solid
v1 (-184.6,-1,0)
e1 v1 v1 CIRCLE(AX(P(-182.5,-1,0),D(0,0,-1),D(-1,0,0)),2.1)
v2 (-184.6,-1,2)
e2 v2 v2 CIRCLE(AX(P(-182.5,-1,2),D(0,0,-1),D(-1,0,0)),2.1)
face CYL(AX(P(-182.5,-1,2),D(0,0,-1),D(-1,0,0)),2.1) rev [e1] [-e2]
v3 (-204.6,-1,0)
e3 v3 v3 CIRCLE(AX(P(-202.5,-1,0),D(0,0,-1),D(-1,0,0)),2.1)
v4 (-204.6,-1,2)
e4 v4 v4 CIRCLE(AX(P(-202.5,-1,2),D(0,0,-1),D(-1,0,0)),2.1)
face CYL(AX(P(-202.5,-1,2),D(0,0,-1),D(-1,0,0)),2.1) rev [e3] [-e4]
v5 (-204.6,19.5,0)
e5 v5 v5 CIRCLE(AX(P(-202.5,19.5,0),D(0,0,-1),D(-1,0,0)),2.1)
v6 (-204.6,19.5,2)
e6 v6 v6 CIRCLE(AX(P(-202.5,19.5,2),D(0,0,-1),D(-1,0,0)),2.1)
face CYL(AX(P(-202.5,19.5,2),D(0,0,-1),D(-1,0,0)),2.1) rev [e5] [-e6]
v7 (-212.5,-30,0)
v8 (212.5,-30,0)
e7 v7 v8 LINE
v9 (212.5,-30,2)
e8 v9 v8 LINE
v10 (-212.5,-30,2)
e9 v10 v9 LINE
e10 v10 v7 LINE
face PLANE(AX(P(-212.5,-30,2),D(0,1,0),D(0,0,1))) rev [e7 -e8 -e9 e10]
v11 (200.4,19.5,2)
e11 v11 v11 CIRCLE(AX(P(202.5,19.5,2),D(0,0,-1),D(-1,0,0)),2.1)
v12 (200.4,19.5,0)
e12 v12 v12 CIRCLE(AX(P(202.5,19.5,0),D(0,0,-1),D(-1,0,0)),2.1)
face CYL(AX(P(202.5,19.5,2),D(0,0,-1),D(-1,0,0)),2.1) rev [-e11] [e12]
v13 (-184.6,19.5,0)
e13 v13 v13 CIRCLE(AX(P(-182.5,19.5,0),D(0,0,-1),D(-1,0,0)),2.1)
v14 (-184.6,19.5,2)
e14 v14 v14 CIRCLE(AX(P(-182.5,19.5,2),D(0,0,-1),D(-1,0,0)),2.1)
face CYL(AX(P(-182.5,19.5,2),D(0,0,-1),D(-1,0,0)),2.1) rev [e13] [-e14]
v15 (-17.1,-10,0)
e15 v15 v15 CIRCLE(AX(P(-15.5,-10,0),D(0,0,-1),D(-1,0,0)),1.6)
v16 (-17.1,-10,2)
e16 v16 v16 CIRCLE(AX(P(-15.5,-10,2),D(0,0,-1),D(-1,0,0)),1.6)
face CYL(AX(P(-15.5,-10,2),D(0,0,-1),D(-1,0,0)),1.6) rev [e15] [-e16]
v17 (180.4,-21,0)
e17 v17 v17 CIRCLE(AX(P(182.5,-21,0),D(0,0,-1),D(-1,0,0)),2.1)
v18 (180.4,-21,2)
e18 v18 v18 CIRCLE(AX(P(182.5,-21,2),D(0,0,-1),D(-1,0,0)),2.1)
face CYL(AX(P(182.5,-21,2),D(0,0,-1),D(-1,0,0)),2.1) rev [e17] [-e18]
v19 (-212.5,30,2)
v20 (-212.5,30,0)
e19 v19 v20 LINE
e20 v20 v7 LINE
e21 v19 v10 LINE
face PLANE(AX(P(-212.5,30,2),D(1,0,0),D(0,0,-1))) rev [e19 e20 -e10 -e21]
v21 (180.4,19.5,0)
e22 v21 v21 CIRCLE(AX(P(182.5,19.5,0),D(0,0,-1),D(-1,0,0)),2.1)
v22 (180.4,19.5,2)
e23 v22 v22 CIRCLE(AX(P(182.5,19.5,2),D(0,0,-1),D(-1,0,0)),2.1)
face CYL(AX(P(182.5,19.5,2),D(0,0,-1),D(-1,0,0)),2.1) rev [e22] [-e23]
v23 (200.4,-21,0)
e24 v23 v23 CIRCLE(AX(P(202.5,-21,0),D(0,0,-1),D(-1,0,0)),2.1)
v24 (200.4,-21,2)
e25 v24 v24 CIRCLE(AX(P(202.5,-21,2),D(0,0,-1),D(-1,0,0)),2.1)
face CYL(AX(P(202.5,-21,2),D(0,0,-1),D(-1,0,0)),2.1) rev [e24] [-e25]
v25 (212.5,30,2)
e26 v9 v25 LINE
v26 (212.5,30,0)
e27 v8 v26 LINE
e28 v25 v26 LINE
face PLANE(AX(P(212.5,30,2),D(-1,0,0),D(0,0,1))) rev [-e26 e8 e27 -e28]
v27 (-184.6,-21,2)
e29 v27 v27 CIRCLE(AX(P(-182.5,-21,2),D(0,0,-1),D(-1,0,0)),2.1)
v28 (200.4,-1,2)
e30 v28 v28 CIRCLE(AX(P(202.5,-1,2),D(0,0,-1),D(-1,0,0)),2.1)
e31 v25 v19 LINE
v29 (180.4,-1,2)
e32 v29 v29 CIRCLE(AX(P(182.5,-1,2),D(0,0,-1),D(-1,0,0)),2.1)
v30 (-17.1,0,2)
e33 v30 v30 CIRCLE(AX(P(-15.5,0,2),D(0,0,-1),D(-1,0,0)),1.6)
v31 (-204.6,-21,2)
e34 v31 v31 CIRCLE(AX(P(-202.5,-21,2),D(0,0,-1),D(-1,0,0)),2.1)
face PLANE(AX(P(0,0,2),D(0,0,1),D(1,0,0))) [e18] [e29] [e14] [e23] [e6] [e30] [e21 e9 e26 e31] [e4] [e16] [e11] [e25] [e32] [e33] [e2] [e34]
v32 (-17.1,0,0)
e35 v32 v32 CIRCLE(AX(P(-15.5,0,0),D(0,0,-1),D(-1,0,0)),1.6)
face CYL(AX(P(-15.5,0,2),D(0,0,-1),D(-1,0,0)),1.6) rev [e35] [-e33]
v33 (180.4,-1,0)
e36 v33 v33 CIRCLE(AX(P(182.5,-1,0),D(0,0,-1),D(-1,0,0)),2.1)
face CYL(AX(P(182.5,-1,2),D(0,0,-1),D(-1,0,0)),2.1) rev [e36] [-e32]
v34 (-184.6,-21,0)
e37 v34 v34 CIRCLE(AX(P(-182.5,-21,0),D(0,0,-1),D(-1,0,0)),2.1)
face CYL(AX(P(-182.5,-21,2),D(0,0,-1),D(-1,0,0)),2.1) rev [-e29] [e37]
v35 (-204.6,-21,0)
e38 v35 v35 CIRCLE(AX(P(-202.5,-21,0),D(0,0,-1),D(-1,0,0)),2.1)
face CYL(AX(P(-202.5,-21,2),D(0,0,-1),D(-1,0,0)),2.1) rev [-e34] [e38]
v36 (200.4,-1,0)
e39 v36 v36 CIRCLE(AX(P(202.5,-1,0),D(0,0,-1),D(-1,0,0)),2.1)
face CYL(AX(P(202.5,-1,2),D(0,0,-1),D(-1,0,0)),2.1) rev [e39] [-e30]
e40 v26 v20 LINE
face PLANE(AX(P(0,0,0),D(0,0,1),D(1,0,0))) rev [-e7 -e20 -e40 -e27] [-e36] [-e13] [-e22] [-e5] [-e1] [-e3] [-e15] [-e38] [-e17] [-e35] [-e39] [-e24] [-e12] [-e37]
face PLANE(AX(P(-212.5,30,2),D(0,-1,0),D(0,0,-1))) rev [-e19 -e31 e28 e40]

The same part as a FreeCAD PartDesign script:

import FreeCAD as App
import Part
import Sketcher
from FreeCAD import Vector


def add_polygon(sketch, points):
    """Adds a closed chain of lines whose ends are joined by coincident constraints."""
    first, n = sketch.GeometryCount, len(points)
    for a, b in zip(points, points[1:] + points[:1]):
        sketch.addGeometry(Part.LineSegment(App.Vector(*a, 0), App.Vector(*b, 0)), False)
    for i in range(n):
        sketch.addConstraint(Sketcher.Constraint("Coincident", first + i, 2, first + (i + 1) % n, 1))

doc = App.newDocument("Part")
body = doc.addObject("PartDesign::Body", "Body")

# Sketch on XY plane
sketch1 = body.newObject("Sketcher::SketchObject", "Sketch")
sketch1.AttachmentSupport = (doc.getObject("XY_Plane"), [""])
sketch1.MapMode = "FlatFace"
add_polygon(sketch1, [(-212.5, 30), (-212.5, -30), (212.5, -30), (212.5, 30)])  # lines 0-3
sketch1.addConstraint(Sketcher.Constraint("Vertical", 0))
sketch1.addConstraint(Sketcher.Constraint("Horizontal", 1))
sketch1.addConstraint(Sketcher.Constraint("Vertical", 2))
sketch1.addConstraint(Sketcher.Constraint("Horizontal", 3))
sketch1.addConstraint(Sketcher.Constraint("Symmetric", 0, 2, 2, 2, -1, 1))
sketch1.addConstraint(Sketcher.Constraint("DistanceX", 1, 1, 1, 2, 425.0))
sketch1.addConstraint(Sketcher.Constraint("DistanceY", 0, 2, 0, 1, 60.0))
pad1 = body.newObject("PartDesign::Pad", "Pad")
pad1.Profile = sketch1
pad1.Length = 2

# Sketch on XY plane
sketch2 = body.newObject("Sketcher::SketchObject", "Sketch001")
sketch2.AttachmentSupport = (doc.getObject("XY_Plane"), [""])
sketch2.MapMode = "FlatFace"
sketch2.addGeometry(Part.Circle(Vector(-202.5, -21, 0), Vector(0, 0, 1), 2.1), False)
sketch2.addGeometry(Part.Circle(Vector(-182.5, -21, 0), Vector(0, 0, 1), 2.1), False)
sketch2.addGeometry(Part.Circle(Vector(-202.5, 19.5, 0), Vector(0, 0, 1), 2.1), False)
sketch2.addGeometry(Part.Circle(Vector(-202.5, -1, 0), Vector(0, 0, 1), 2.1), False)
sketch2.addGeometry(Part.Circle(Vector(-182.5, -1, 0), Vector(0, 0, 1), 2.1), False)
sketch2.addGeometry(Part.Circle(Vector(-182.5, 19.5, 0), Vector(0, 0, 1), 2.1), False)
sketch2.addGeometry(Part.Circle(Vector(182.5, -21, 0), Vector(0, 0, 1), 2.1), False)
sketch2.addGeometry(Part.Circle(Vector(202.5, -21, 0), Vector(0, 0, 1), 2.1), False)
sketch2.addGeometry(Part.Circle(Vector(182.5, -1, 0), Vector(0, 0, 1), 2.1), False)
sketch2.addGeometry(Part.Circle(Vector(202.5, -1, 0), Vector(0, 0, 1), 2.1), False)
sketch2.addGeometry(Part.Circle(Vector(202.5, 19.5, 0), Vector(0, 0, 1), 2.1), False)
sketch2.addGeometry(Part.Circle(Vector(182.5, 19.5, 0), Vector(0, 0, 1), 2.1), False)
sketch2.addGeometry(Part.Circle(Vector(-15.5, -10, 0), Vector(0, 0, 1), 1.6), False)
sketch2.addGeometry(Part.Circle(Vector(-15.5, 0, 0), Vector(0, 0, 1), 1.6), False)
sketch2.addConstraint(Sketcher.Constraint("Equal", 0, 1))
sketch2.addConstraint(Sketcher.Constraint("Equal", 1, 2))
sketch2.addConstraint(Sketcher.Constraint("Equal", 2, 3))
sketch2.addConstraint(Sketcher.Constraint("Equal", 3, 4))
sketch2.addConstraint(Sketcher.Constraint("Equal", 4, 5))
sketch2.addConstraint(Sketcher.Constraint("Equal", 5, 6))
sketch2.addConstraint(Sketcher.Constraint("Equal", 6, 7))
sketch2.addConstraint(Sketcher.Constraint("Equal", 7, 8))
sketch2.addConstraint(Sketcher.Constraint("Equal", 8, 9))
sketch2.addConstraint(Sketcher.Constraint("Equal", 9, 10))
sketch2.addConstraint(Sketcher.Constraint("Equal", 10, 11))
sketch2.addConstraint(Sketcher.Constraint("Equal", 12, 13))
sketch2.addConstraint(Sketcher.Constraint("Symmetric", 1, 3, 6, 3, -2))
sketch2.addConstraint(Sketcher.Constraint("Symmetric", 0, 3, 7, 3, -2))
sketch2.addConstraint(Sketcher.Constraint("Symmetric", 4, 3, 8, 3, -2))
sketch2.addConstraint(Sketcher.Constraint("Symmetric", 3, 3, 9, 3, -2))
sketch2.addConstraint(Sketcher.Constraint("Symmetric", 2, 3, 10, 3, -2))
sketch2.addConstraint(Sketcher.Constraint("Symmetric", 5, 3, 11, 3, -2))
sketch2.addConstraint(Sketcher.Constraint("PointOnObject", 13, 3, -1))
sketch2.addConstraint(Sketcher.Constraint("Horizontal", 0, 3, 1, 3))
sketch2.addConstraint(Sketcher.Constraint("Horizontal", 3, 3, 4, 3))
sketch2.addConstraint(Sketcher.Constraint("Horizontal", 2, 3, 5, 3))
sketch2.addConstraint(Sketcher.Constraint("Vertical", 0, 3, 2, 3))
sketch2.addConstraint(Sketcher.Constraint("Vertical", 2, 3, 3, 3))
sketch2.addConstraint(Sketcher.Constraint("Vertical", 1, 3, 4, 3))
sketch2.addConstraint(Sketcher.Constraint("Vertical", 4, 3, 5, 3))
sketch2.addConstraint(Sketcher.Constraint("Vertical", 12, 3, 13, 3))
sketch2.addConstraint(Sketcher.Constraint("Diameter", 0, 4.2))
sketch2.addConstraint(Sketcher.Constraint("Diameter", 12, 3.2))
sketch2.addConstraint(Sketcher.Constraint("DistanceY", 0, 3, -1, 1, 21.0))
sketch2.addConstraint(Sketcher.Constraint("DistanceY", 3, 3, -1, 1, 1.0))
sketch2.addConstraint(Sketcher.Constraint("DistanceY", 12, 3, -1, 1, 10.0))
sketch2.addConstraint(Sketcher.Constraint("DistanceX", 0, 3, 1, 3, 20.0))
sketch2.addConstraint(Sketcher.Constraint("DistanceX", 1, 3, 6, 3, 365.0))
sketch2.addConstraint(Sketcher.Constraint("DistanceX", 4, 3, 12, 3, 167.0))
sketch2.addConstraint(Sketcher.Constraint("DistanceY", -1, 1, 2, 3, 19.5))
pocket1 = body.newObject("PartDesign::Pocket", "Pocket")
pocket1.Profile = sketch2
pocket1.Type = "ThroughAll"
pocket1.Reversed = True

doc.recompute()
